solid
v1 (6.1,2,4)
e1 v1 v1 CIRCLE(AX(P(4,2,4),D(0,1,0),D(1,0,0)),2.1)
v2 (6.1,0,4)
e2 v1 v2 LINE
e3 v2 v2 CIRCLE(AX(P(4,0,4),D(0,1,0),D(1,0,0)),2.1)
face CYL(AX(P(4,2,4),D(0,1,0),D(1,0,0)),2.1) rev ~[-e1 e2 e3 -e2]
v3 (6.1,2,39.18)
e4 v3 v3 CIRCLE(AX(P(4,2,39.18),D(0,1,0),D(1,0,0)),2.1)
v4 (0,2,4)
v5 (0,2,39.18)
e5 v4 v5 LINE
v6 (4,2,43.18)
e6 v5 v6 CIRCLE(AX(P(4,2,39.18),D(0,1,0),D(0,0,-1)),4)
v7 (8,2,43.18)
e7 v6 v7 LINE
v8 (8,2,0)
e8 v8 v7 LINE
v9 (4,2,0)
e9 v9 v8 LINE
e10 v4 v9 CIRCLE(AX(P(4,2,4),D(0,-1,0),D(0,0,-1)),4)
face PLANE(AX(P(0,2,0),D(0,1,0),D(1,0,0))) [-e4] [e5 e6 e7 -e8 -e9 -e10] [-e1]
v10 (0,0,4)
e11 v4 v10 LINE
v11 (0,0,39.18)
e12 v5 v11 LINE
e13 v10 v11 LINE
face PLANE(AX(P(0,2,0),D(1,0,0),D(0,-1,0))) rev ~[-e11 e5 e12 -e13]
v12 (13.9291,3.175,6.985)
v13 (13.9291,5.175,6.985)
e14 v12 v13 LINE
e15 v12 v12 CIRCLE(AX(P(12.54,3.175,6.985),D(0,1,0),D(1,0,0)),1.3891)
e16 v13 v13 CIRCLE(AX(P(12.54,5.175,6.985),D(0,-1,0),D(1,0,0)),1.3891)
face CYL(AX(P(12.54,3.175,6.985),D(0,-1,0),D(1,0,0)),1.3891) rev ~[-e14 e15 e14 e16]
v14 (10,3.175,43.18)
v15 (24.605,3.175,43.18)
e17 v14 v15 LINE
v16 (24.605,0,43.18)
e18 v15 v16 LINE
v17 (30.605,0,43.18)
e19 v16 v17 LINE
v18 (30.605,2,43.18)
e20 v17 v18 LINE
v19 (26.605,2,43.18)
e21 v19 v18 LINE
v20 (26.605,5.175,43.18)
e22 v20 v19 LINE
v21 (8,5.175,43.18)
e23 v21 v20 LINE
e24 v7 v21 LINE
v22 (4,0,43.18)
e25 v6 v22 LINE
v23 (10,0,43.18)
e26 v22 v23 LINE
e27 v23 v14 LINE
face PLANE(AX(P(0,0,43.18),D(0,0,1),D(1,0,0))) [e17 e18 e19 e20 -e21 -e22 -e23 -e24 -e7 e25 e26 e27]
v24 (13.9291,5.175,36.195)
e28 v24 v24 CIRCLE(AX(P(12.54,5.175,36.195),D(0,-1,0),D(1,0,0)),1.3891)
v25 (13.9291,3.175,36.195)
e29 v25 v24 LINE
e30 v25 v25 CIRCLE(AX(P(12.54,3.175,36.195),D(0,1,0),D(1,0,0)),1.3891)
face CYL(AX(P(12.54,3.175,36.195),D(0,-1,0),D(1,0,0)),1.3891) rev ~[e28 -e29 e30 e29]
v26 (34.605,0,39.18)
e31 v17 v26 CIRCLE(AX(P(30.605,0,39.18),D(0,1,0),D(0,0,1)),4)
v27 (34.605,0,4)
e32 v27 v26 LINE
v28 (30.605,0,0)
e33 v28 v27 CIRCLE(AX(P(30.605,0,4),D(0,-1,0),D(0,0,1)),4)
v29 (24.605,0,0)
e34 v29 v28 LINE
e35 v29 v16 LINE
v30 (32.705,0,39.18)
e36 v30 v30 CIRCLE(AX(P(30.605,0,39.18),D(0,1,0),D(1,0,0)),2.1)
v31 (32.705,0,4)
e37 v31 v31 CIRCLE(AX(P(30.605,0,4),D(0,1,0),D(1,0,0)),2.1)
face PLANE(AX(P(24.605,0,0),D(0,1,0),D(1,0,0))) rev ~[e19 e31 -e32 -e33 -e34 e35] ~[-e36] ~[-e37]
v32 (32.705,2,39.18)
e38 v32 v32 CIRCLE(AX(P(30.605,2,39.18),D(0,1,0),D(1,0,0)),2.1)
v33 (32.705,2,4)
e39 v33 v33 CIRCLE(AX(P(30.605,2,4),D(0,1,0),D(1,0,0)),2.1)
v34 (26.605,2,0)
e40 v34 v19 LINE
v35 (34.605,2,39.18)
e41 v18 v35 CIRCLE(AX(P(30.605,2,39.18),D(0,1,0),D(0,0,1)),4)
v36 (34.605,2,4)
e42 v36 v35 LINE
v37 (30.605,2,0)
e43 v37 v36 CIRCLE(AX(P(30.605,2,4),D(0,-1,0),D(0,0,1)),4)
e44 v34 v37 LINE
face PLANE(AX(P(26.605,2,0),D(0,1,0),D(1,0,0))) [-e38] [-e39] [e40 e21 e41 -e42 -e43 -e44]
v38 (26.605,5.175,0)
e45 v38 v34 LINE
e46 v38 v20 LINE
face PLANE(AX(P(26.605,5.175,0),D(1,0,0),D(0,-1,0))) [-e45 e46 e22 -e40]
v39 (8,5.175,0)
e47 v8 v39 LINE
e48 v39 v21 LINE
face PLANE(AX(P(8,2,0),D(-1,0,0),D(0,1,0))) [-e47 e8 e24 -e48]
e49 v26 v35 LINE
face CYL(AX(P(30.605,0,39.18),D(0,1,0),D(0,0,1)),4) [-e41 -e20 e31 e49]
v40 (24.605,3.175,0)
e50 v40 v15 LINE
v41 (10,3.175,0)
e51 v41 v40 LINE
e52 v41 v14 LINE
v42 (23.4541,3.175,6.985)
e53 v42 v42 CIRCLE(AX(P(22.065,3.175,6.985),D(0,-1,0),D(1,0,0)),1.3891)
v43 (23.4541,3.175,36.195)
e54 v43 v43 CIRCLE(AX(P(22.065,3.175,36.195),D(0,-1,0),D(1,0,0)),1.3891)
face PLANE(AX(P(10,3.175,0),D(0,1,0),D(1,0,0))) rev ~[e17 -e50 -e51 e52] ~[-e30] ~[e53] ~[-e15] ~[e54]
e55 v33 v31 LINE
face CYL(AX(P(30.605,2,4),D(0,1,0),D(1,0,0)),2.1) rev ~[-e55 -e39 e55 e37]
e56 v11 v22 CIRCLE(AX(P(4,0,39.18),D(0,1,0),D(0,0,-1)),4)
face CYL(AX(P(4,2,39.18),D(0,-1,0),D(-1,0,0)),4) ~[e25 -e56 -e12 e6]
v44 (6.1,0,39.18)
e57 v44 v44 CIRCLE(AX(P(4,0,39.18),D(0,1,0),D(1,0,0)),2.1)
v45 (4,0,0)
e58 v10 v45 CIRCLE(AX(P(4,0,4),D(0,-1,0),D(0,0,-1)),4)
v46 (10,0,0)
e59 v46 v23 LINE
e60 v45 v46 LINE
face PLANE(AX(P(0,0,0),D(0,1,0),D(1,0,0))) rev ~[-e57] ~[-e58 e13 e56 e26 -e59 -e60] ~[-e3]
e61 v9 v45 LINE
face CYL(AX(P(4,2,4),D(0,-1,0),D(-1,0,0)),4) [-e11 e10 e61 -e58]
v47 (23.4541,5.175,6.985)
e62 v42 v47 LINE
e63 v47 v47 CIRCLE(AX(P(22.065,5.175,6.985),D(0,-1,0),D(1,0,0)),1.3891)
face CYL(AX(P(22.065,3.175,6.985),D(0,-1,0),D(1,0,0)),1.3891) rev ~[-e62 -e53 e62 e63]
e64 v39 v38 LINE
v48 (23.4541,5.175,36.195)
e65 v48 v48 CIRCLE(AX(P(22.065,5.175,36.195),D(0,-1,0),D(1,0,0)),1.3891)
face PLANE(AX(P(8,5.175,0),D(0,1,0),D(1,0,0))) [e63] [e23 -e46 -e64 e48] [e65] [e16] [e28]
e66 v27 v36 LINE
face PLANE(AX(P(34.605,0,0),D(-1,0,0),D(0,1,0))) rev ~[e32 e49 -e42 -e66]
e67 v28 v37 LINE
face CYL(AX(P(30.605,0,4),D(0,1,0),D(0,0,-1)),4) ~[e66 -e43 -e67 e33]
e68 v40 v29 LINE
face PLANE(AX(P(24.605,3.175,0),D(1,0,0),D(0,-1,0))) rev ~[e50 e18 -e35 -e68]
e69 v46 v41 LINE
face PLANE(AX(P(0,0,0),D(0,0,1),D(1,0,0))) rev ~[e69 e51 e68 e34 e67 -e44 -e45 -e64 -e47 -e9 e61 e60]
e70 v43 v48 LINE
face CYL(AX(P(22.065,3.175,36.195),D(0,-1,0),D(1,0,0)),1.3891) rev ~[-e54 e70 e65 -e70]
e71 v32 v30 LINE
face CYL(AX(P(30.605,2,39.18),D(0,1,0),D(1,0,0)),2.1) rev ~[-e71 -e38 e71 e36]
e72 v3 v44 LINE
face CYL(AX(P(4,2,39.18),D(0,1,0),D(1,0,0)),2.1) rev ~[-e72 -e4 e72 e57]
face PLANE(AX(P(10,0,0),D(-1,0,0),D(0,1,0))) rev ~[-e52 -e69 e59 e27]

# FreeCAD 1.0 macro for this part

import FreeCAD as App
import Part
import Sketcher
Q = App.Units.Quantity


def edges_at(feature, points):
    """Names of the edges that pass closest to the given points."""
    edges = feature.Shape.Edges
    near = lambda p: min(range(len(edges)), key=lambda i: edges[i].distToShape(Part.Vertex(*p))[0])
    return sorted({f"Edge{near(p) + 1}" for p in points})

doc = App.newDocument("Part")
body = doc.addObject("PartDesign::Body", "Body")

# Sketch on XY plane
sketch1 = doc.addObject("Sketcher::SketchObject", "Sketch")
body.addObject(sketch1)
sketch1.AttachmentSupport = (doc.XY_Plane, [""])
sketch1.MapMode = "FlatFace"
sketch1.addGeometry(Part.LineSegment(App.Vector(0, 2, 0), App.Vector(0, 0, 0)), False)
sketch1.addGeometry(Part.LineSegment(App.Vector(0, 0, 0), App.Vector(10, 0, 0)), False)
sketch1.addGeometry(Part.LineSegment(App.Vector(10, 0, 0), App.Vector(10, 3.175, 0)), False)
sketch1.addGeometry(Part.LineSegment(App.Vector(10, 3.175, 0), App.Vector(24.605, 3.175, 0)), False)
sketch1.addGeometry(Part.LineSegment(App.Vector(24.605, 3.175, 0), App.Vector(24.605, 0, 0)), False)
sketch1.addGeometry(Part.LineSegment(App.Vector(24.605, 0, 0), App.Vector(34.605, 0, 0)), False)
sketch1.addGeometry(Part.LineSegment(App.Vector(34.605, 0, 0), App.Vector(34.605, 2, 0)), False)
sketch1.addGeometry(Part.LineSegment(App.Vector(34.605, 2, 0), App.Vector(26.605, 2, 0)), False)
sketch1.addGeometry(Part.LineSegment(App.Vector(26.605, 2, 0), App.Vector(26.605, 5.175, 0)), False)
sketch1.addGeometry(Part.LineSegment(App.Vector(26.605, 5.175, 0), App.Vector(8, 5.175, 0)), False)
sketch1.addGeometry(Part.LineSegment(App.Vector(8, 5.175, 0), App.Vector(8, 2, 0)), False)
sketch1.addGeometry(Part.LineSegment(App.Vector(8, 2, 0), App.Vector(0, 2, 0)), False)
sketch1.addConstraint(Sketcher.Constraint("Coincident", 0, 2, 1, 1))
sketch1.addConstraint(Sketcher.Constraint("Coincident", 1, 2, 2, 1))
sketch1.addConstraint(Sketcher.Constraint("Coincident", 2, 2, 3, 1))
sketch1.addConstraint(Sketcher.Constraint("Coincident", 3, 2, 4, 1))
sketch1.addConstraint(Sketcher.Constraint("Coincident", 4, 2, 5, 1))
sketch1.addConstraint(Sketcher.Constraint("Coincident", 5, 2, 6, 1))
sketch1.addConstraint(Sketcher.Constraint("Coincident", 6, 2, 7, 1))
sketch1.addConstraint(Sketcher.Constraint("Coincident", 7, 2, 8, 1))
sketch1.addConstraint(Sketcher.Constraint("Coincident", 8, 2, 9, 1))
sketch1.addConstraint(Sketcher.Constraint("Coincident", 9, 2, 10, 1))
sketch1.addConstraint(Sketcher.Constraint("Coincident", 10, 2, 11, 1))
sketch1.addConstraint(Sketcher.Constraint("Coincident", 11, 2, 0, 1))
sketch1.addConstraint(Sketcher.Constraint("Vertical", 0))
sketch1.addConstraint(Sketcher.Constraint("Horizontal", 1))
sketch1.addConstraint(Sketcher.Constraint("Vertical", 2))
sketch1.addConstraint(Sketcher.Constraint("Horizontal", 3))
sketch1.addConstraint(Sketcher.Constraint("Vertical", 4))
sketch1.addConstraint(Sketcher.Constraint("Horizontal", 5))
sketch1.addConstraint(Sketcher.Constraint("Vertical", 6))
sketch1.addConstraint(Sketcher.Constraint("Horizontal", 7))
sketch1.addConstraint(Sketcher.Constraint("Vertical", 8))
sketch1.addConstraint(Sketcher.Constraint("Horizontal", 9))
sketch1.addConstraint(Sketcher.Constraint("Vertical", 10))
sketch1.addConstraint(Sketcher.Constraint("Horizontal", 11))
sketch1.addConstraint(Sketcher.Constraint("Coincident", 0, 2, -1, 1))
sketch1.addConstraint(Sketcher.Constraint("PointOnObject", 4, 2, -1))
sketch1.addConstraint(Sketcher.Constraint("Horizontal", 7, 2, 10, 2))
sketch1.addConstraint(Sketcher.Constraint("Equal", 1, 5))
sketch1.addConstraint(Sketcher.Constraint("Equal", 7, 11))
sketch1.addConstraint(Sketcher.Constraint("Equal", 4, 8))
sketch1.addConstraint(Sketcher.Constraint("DistanceX", 1, 1, 1, 2, Q("10 mm")))
sketch1.addConstraint(Sketcher.Constraint("DistanceY", 0, 2, 0, 1, Q("2 mm")))
sketch1.addConstraint(Sketcher.Constraint("DistanceX", 3, 2, 7, 2, Q("2 mm")))
sketch1.addConstraint(Sketcher.Constraint("DistanceX", 3, 1, 3, 2, Q("14.605 mm")))
sketch1.addConstraint(Sketcher.Constraint("DistanceY", 2, 1, 2, 2, Q("3.175 mm")))
pad1 = doc.addObject("PartDesign::Pad", "Pad")
body.addObject(pad1)
pad1.Profile = sketch1
pad1.Length = 43.18

# Sketch on XZ plane
sketch2 = doc.addObject("Sketcher::SketchObject", "Sketch001")
body.addObject(sketch2)
sketch2.AttachmentSupport = (doc.XZ_Plane, [""])
sketch2.MapMode = "FlatFace"
sketch2.AttachmentOffset = App.Placement(App.Vector(0, 0, -3.175), App.Rotation())
sketch2.addGeometry(Part.Circle(App.Vector(22.065, 6.985, 0), App.Vector(0, 0, 1), 1.3891), False)
sketch2.addGeometry(Part.Circle(App.Vector(22.065, 36.195, 0), App.Vector(0, 0, 1), 1.3891), False)
sketch2.addGeometry(Part.Circle(App.Vector(12.54, 36.195, 0), App.Vector(0, 0, 1), 1.3891), False)
sketch2.addGeometry(Part.Circle(App.Vector(12.54, 6.985, 0), App.Vector(0, 0, 1), 1.3891), False)
sketch2.addConstraint(Sketcher.Constraint("Equal", 0, 1))
sketch2.addConstraint(Sketcher.Constraint("Equal", 1, 2))
sketch2.addConstraint(Sketcher.Constraint("Equal", 2, 3))
sketch2.addConstraint(Sketcher.Constraint("Horizontal", 1, 3, 2, 3))
sketch2.addConstraint(Sketcher.Constraint("Horizontal", 0, 3, 3, 3))
sketch2.addConstraint(Sketcher.Constraint("Vertical", 0, 3, 1, 3))
sketch2.addConstraint(Sketcher.Constraint("Vertical", 2, 3, 3, 3))
sketch2.addConstraint(Sketcher.Constraint("Diameter", 0, Q("2.7782 mm")))
sketch2.addConstraint(Sketcher.Constraint("DistanceY", -1, 1, 0, 3, Q("6.985 mm")))
sketch2.addConstraint(Sketcher.Constraint("DistanceX", -1, 1, 2, 3, Q("12.54 mm")))
sketch2.addConstraint(Sketcher.Constraint("DistanceY", 0, 3, 1, 3, Q("29.21 mm")))
sketch2.addConstraint(Sketcher.Constraint("DistanceX", -1, 1, 0, 3, Q("22.065 mm")))
pocket1 = doc.addObject("PartDesign::Pocket", "Pocket")
body.addObject(pocket1)
pocket1.Profile = sketch2
pocket1.Length = 43.18
doc.recompute()

fillet = doc.addObject("PartDesign::Fillet", "Fillet")
body.addObject(fillet)
fillet.Base = (pocket1, edges_at(pocket1, [
    (34.605, 1, 43.18),
    (34.605, 1, 0),
    (0, 1, 0),
    (0, 1, 43.18),
]))
fillet.Radius = 4

# Sketch on XZ plane
sketch3 = doc.addObject("Sketcher::SketchObject", "Sketch002")
body.addObject(sketch3)
sketch3.AttachmentSupport = (doc.XZ_Plane, [""])
sketch3.MapMode = "FlatFace"
sketch3.AttachmentOffset = App.Placement(App.Vector(0, 0, -2), App.Rotation())
sketch3.addGeometry(Part.Circle(App.Vector(30.605, 39.18, 0), App.Vector(0, 0, 1), 2.1), False)
sketch3.addGeometry(Part.Circle(App.Vector(30.605, 4, 0), App.Vector(0, 0, 1), 2.1), False)
sketch3.addGeometry(Part.Circle(App.Vector(4, 4, 0), App.Vector(0, 0, 1), 2.1), False)
sketch3.addGeometry(Part.Circle(App.Vector(4, 39.18, 0), App.Vector(0, 0, 1), 2.1), False)
sketch3.addConstraint(Sketcher.Constraint("Equal", 0, 1))
sketch3.addConstraint(Sketcher.Constraint("Equal", 1, 2))
sketch3.addConstraint(Sketcher.Constraint("Equal", 2, 3))
sketch3.addConstraint(Sketcher.Constraint("Horizontal", 1, 3, 2, 3))
sketch3.addConstraint(Sketcher.Constraint("Horizontal", 0, 3, 3, 3))
sketch3.addConstraint(Sketcher.Constraint("Vertical", 0, 3, 1, 3))
sketch3.addConstraint(Sketcher.Constraint("Vertical", 2, 3, 3, 3))
sketch3.addConstraint(Sketcher.Constraint("Diameter", 0, Q("4.2 mm")))
sketch3.addConstraint(Sketcher.Constraint("DistanceY", -1, 1, 1, 3, Q("4 mm")))
sketch3.addConstraint(Sketcher.Constraint("DistanceX", -1, 1, 2, 3, Q("4 mm")))
sketch3.addConstraint(Sketcher.Constraint("DistanceY", -1, 1, 0, 3, Q("39.18 mm")))
sketch3.addConstraint(Sketcher.Constraint("DistanceX", -1, 1, 0, 3, Q("30.605 mm")))
pocket2 = doc.addObject("PartDesign::Pocket", "Pocket001")
body.addObject(pocket2)
pocket2.Profile = sketch3
pocket2.Length = 43.18
pocket2.Reversed = True

doc.recompute()
